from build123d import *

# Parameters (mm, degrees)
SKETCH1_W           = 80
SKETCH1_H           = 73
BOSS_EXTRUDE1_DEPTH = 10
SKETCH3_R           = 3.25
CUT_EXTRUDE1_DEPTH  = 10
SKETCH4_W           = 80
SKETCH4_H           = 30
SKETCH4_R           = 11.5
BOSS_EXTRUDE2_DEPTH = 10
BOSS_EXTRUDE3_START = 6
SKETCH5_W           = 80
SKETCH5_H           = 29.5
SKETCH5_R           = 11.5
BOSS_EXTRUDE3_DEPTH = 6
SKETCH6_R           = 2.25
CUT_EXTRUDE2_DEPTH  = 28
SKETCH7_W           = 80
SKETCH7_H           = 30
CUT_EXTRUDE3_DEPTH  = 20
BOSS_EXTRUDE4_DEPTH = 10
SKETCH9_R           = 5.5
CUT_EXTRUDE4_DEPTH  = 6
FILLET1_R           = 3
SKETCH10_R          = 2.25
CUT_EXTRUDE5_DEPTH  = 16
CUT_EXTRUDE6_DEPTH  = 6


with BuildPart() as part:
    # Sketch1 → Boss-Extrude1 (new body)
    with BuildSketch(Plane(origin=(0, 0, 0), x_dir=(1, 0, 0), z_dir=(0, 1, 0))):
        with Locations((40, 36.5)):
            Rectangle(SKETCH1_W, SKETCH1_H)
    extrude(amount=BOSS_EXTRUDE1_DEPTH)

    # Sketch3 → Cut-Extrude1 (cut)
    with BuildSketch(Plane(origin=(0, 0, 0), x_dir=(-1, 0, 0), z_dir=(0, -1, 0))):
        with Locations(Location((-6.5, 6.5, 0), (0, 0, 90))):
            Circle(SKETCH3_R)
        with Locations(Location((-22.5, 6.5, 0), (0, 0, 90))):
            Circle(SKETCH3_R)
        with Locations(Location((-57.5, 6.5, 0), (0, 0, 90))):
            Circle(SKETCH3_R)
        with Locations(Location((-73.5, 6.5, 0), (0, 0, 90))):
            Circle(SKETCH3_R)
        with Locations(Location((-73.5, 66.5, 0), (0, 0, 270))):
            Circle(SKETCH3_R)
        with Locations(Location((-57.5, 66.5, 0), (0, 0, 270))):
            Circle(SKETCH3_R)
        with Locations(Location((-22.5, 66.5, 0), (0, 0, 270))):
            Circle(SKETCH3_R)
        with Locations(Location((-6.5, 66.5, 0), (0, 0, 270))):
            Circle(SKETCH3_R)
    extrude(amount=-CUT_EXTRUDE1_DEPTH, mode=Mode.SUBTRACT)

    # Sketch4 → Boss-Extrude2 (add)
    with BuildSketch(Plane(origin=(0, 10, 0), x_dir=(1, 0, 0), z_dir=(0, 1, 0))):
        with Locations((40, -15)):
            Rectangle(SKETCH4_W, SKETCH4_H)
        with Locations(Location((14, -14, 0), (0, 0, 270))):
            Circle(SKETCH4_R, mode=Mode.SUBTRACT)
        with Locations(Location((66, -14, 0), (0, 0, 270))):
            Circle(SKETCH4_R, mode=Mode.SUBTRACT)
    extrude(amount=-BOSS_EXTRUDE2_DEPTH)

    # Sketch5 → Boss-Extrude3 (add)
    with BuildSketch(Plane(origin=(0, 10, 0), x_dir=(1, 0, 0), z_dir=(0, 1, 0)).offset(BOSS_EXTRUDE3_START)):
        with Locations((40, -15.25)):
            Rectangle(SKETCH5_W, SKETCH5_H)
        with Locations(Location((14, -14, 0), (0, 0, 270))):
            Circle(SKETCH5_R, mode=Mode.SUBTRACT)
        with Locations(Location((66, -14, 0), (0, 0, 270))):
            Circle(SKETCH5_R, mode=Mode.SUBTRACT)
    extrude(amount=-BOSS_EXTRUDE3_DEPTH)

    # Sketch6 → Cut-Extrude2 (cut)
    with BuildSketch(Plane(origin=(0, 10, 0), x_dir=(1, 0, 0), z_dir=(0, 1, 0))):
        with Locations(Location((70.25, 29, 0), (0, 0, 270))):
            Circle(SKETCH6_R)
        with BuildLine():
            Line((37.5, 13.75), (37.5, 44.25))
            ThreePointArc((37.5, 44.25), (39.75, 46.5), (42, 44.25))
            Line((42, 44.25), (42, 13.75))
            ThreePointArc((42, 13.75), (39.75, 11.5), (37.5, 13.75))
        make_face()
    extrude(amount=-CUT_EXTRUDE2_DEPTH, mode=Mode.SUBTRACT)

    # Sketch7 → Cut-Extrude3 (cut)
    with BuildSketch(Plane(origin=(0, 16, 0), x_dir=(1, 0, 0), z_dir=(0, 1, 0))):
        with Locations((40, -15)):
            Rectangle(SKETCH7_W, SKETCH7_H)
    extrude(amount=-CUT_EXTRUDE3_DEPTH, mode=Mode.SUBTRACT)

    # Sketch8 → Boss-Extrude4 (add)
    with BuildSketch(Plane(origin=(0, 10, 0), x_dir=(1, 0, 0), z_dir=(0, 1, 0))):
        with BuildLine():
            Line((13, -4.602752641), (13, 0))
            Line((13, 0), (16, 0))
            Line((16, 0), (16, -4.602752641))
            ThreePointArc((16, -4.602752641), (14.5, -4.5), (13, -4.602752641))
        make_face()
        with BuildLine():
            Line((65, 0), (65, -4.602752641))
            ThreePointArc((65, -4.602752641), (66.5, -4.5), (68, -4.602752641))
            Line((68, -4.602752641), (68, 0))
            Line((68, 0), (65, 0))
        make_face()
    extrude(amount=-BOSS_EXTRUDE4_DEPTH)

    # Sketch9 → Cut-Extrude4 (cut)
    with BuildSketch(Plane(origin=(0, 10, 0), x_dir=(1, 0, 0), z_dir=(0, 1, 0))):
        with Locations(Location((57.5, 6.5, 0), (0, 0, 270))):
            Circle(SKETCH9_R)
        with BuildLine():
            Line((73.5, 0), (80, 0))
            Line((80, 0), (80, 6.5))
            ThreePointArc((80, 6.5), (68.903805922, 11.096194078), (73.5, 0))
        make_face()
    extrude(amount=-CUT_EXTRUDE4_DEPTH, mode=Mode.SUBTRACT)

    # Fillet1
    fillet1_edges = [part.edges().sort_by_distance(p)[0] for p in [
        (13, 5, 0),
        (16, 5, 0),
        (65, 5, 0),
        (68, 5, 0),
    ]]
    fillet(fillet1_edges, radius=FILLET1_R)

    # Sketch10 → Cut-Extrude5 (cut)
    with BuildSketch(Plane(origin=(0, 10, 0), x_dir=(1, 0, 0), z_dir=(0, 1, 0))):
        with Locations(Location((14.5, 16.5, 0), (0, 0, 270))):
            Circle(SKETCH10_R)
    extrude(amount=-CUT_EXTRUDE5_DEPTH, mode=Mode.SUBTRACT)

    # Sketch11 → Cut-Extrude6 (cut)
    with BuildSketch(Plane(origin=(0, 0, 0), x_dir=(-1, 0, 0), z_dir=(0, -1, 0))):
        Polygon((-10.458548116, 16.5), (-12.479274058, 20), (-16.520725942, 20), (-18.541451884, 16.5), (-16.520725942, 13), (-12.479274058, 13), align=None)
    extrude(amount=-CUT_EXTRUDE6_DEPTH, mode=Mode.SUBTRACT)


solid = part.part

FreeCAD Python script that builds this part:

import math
import FreeCAD as App
import Part
import Sketcher
from FreeCAD import Vector
Q = App.Units.Quantity


def edges_at(feature, points):
    """Names of the edges that pass closest to the given points."""
    edges = feature.Shape.Edges
    near = lambda p: min(range(len(edges)), key=lambda i: edges[i].distToShape(Part.Vertex(*p))[0])
    return sorted({f"Edge{near(p) + 1}" for p in points})

doc = App.newDocument("Part")
body = doc.addObject("PartDesign::Body", "Body")

sketch1 = body.newObject("Sketcher::SketchObject", "Sketch")
sketch1.AttachmentSupport = (doc.getObject("XZ_Plane"), [""])
sketch1.MapMode = "FlatFace"
sketch1.addGeometry([
    Part.LineSegment(Vector(0, -73, 0), Vector(0, 0, 0)),
    Part.LineSegment(Vector(0, 0, 0), Vector(80, 0, 0)),
    Part.LineSegment(Vector(80, 0, 0), Vector(80, -73, 0)),
    Part.LineSegment(Vector(80, -73, 0), Vector(0, -73, 0)),
], False)
sketch1.addConstraint([
    Sketcher.Constraint("Coincident", 0, 2, 1, 1),
    Sketcher.Constraint("Coincident", 1, 2, 2, 1),
    Sketcher.Constraint("Coincident", 2, 2, 3, 1),
    Sketcher.Constraint("Coincident", 3, 2, 0, 1),
    Sketcher.Constraint("Vertical", 0),
    Sketcher.Constraint("Horizontal", 1),
    Sketcher.Constraint("Vertical", 2),
    Sketcher.Constraint("Horizontal", 3),
    Sketcher.Constraint("Coincident", 0, 2, -1, 1),
    Sketcher.Constraint("DistanceX", 1, 1, 1, 2, 80.0),
    Sketcher.Constraint("DistanceY", 0, 1, 0, 2, 73.0),
])
pad1 = body.newObject("PartDesign::Pad", "Pad")
pad1.Profile = sketch1
pad1.Length = 10
pad1.Reversed = True

sketch2 = body.newObject("Sketcher::SketchObject", "Sketch001")
sketch2.AttachmentSupport = (doc.getObject("XZ_Plane"), [""])
sketch2.MapMode = "FlatFace"
sketch2.addGeometry([
    Part.Circle(Vector(6.5, -6.5, 0), Vector(0, 0, 1), 3.2),
    Part.Circle(Vector(22.5, -6.5, 0), Vector(0, 0, 1), 3.2),
    Part.Circle(Vector(57.5, -6.5, 0), Vector(0, 0, 1), 3.2),
    Part.Circle(Vector(73.5, -6.5, 0), Vector(0, 0, 1), 3.2),
    Part.Circle(Vector(73.5, -66.5, 0), Vector(0, 0, 1), 3.2),
    Part.Circle(Vector(57.5, -66.5, 0), Vector(0, 0, 1), 3.2),
    Part.Circle(Vector(22.5, -66.5, 0), Vector(0, 0, 1), 3.2),
    Part.Circle(Vector(6.5, -66.5, 0), Vector(0, 0, 1), 3.2),
], False)
sketch2.addConstraint([
    Sketcher.Constraint("Equal", 0, 1),
    Sketcher.Constraint("Equal", 1, 2),
    Sketcher.Constraint("Equal", 2, 3),
    Sketcher.Constraint("Equal", 3, 4),
    Sketcher.Constraint("Equal", 4, 5),
    Sketcher.Constraint("Equal", 5, 6),
    Sketcher.Constraint("Equal", 6, 7),
    Sketcher.Constraint("Horizontal", 0, 3, 1, 3),
    Sketcher.Constraint("Horizontal", 1, 3, 2, 3),
    Sketcher.Constraint("Horizontal", 2, 3, 3, 3),
    Sketcher.Constraint("Horizontal", 4, 3, 5, 3),
    Sketcher.Constraint("Horizontal", 5, 3, 6, 3),
    Sketcher.Constraint("Horizontal", 6, 3, 7, 3),
    Sketcher.Constraint("Vertical", 3, 3, 4, 3),
    Sketcher.Constraint("Vertical", 2, 3, 5, 3),
    Sketcher.Constraint("Vertical", 1, 3, 6, 3),
    Sketcher.Constraint("Vertical", 0, 3, 7, 3),
    Sketcher.Constraint("Diameter", 0, 6.5),
    Sketcher.Constraint("DistanceX", 0, 3, 1, 3, 16.0),
    Sketcher.Constraint("DistanceX", 1, 3, 2, 3, 35.0),
    Sketcher.Constraint("DistanceX", 2, 3, 3, 3, 16.0),
    Sketcher.Constraint("DistanceY", 4, 3, 3, 3, 60.0),
    Sketcher.Constraint("DistanceX", -1, 1, 0, 3, 6.5),
    Sketcher.Constraint("DistanceY", 0, 3, -1, 1, 6.5),
])
pocket1 = body.newObject("PartDesign::Pocket", "Pocket")
pocket1.Profile = sketch2
pocket1.Length = 10

sketch3 = body.newObject("Sketcher::SketchObject", "Sketch002")
sketch3.AttachmentSupport = (doc.getObject("XZ_Plane"), [""])
sketch3.MapMode = "FlatFace"
sketch3.AttachmentOffset = App.Placement(Vector(0, 0, -10), App.Rotation())
sketch3.addGeometry([
    Part.LineSegment(Vector(0, 0, 0), Vector(0, 30, 0)),
    Part.LineSegment(Vector(0, 30, 0), Vector(80, 30, 0)),
    Part.LineSegment(Vector(80, 30, 0), Vector(80, 0, 0)),
    Part.LineSegment(Vector(80, 0, 0), Vector(0, 0, 0)),
    Part.Circle(Vector(14, 14, 0), Vector(0, 0, 1), 12),
    Part.Circle(Vector(66, 14, 0), Vector(0, 0, 1), 12),
], False)
sketch3.addConstraint([
    Sketcher.Constraint("Coincident", 0, 2, 1, 1),
    Sketcher.Constraint("Coincident", 1, 2, 2, 1),
    Sketcher.Constraint("Coincident", 2, 2, 3, 1),
    Sketcher.Constraint("Coincident", 3, 2, 0, 1),
    Sketcher.Constraint("Vertical", 0),
    Sketcher.Constraint("Horizontal", 1),
    Sketcher.Constraint("Vertical", 2),
    Sketcher.Constraint("Horizontal", 3),
    Sketcher.Constraint("Coincident", 3, 2, -1, 1),
    Sketcher.Constraint("Equal", 4, 5),
    Sketcher.Constraint("Horizontal", 4, 3, 5, 3),
    Sketcher.Constraint("Diameter", 4, 23.0),
    Sketcher.Constraint("DistanceX", 1, 1, 1, 2, 80.0),
    Sketcher.Constraint("DistanceY", 0, 1, 0, 2, 30.0),
    Sketcher.Constraint("DistanceX", -1, 1, 4, 3, 14.0),
    Sketcher.Constraint("DistanceY", -1, 1, 4, 3, 14.0),
    Sketcher.Constraint("DistanceX", -1, 1, 5, 3, 66.0),
])
pad2 = body.newObject("PartDesign::Pad", "Pad001")
pad2.Profile = sketch3
pad2.Length = 10

sketch4 = body.newObject("Sketcher::SketchObject", "Sketch003")
sketch4.AttachmentSupport = (doc.getObject("XZ_Plane"), [""])
sketch4.MapMode = "FlatFace"
sketch4.AttachmentOffset = App.Placement(Vector(0, 0, -16), App.Rotation())
sketch4.addGeometry([
    Part.LineSegment(Vector(0, 0, 0), Vector(0, 30, 0)),
    Part.LineSegment(Vector(0, 30, 0), Vector(80, 30, 0)),
    Part.LineSegment(Vector(80, 30, 0), Vector(80, 0, 0)),
    Part.LineSegment(Vector(80, 0, 0), Vector(0, 0, 0)),
    Part.Circle(Vector(14, 14, 0), Vector(0, 0, 1), 12),
    Part.Circle(Vector(66, 14, 0), Vector(0, 0, 1), 12),
], False)
sketch4.addConstraint([
    Sketcher.Constraint("Coincident", 0, 2, 1, 1),
    Sketcher.Constraint("Coincident", 1, 2, 2, 1),
    Sketcher.Constraint("Coincident", 2, 2, 3, 1),
    Sketcher.Constraint("Coincident", 3, 2, 0, 1),
    Sketcher.Constraint("Vertical", 0),
    Sketcher.Constraint("Horizontal", 1),
    Sketcher.Constraint("Vertical", 2),
    Sketcher.Constraint("Horizontal", 3),
    Sketcher.Constraint("Equal", 4, 5),
    Sketcher.Constraint("PointOnObject", 0, 2, -2),
    Sketcher.Constraint("Horizontal", 4, 3, 5, 3),
    Sketcher.Constraint("Diameter", 4, 23.0),
    Sketcher.Constraint("DistanceX", 1, 1, 1, 2, 80.0),
    Sketcher.Constraint("DistanceY", 0, 1, 0, 2, 29.5),
    Sketcher.Constraint("DistanceX", -1, 1, 4, 3, 14.0),
    Sketcher.Constraint("DistanceY", -1, 1, 4, 3, 14.0),
    Sketcher.Constraint("DistanceX", -1, 1, 5, 3, 66.0),
    Sketcher.Constraint("DistanceY", -1, 1, 0, 2, 30.0),
])
pad3 = body.newObject("PartDesign::Pad", "Pad002")
pad3.Profile = sketch4
pad3.Length = 6

sketch5 = body.newObject("Sketcher::SketchObject", "Sketch004")
sketch5.AttachmentSupport = (doc.getObject("XZ_Plane"), [""])
sketch5.MapMode = "FlatFace"
sketch5.AttachmentOffset = App.Placement(Vector(0, 0, -10), App.Rotation())
sketch5.addGeometry([
    Part.Circle(Vector(70.2, -29, 0), Vector(0, 0, 1), 2.2),
    Part.LineSegment(Vector(37.5, -44.2, 0), Vector(37.5, -13.8, 0)),
    Part.ArcOfCircle(Part.Circle(Vector(39.8, -13.8, 0), Vector(0, 0, 1), 2.2), math.radians(0), math.radians(180)),
    Part.LineSegment(Vector(42, -13.8, 0), Vector(42, -44.2, 0)),
    Part.ArcOfCircle(Part.Circle(Vector(39.8, -44.2, 0), Vector(0, 0, 1), 2.2), math.radians(180), math.radians(360)),
], False)
sketch5.addConstraint([
    Sketcher.Constraint("Tangent", 1, 2, 2, 2),
    Sketcher.Constraint("Tangent", 2, 1, 3, 1),
    Sketcher.Constraint("Tangent", 3, 2, 4, 2),
    Sketcher.Constraint("Tangent", 4, 1, 1, 1),
    Sketcher.Constraint("Vertical", 1),
    Sketcher.Constraint("Vertical", 3),
    Sketcher.Constraint("Equal", 0, 2),
    Sketcher.Constraint("Diameter", 0, 4.5),
    Sketcher.Constraint("DistanceY", 1, 1, 1, 2, 30.5),
    Sketcher.Constraint("DistanceY", 0, 3, -1, 1, 29.0),
    Sketcher.Constraint("DistanceX", -1, 1, 2, 1, 42.0),
    Sketcher.Constraint("DistanceX", 2, 3, 0, 3, 30.5),
    Sketcher.Constraint("DistanceY", 2, 3, -1, 1, 13.75),
])
pocket2 = body.newObject("PartDesign::Pocket", "Pocket001")
pocket2.Profile = sketch5
pocket2.Length = 28
pocket2.Reversed = True

sketch6 = body.newObject("Sketcher::SketchObject", "Sketch005")
sketch6.AttachmentSupport = (doc.getObject("XZ_Plane"), [""])
sketch6.MapMode = "FlatFace"
sketch6.AttachmentOffset = App.Placement(Vector(0, 0, -16), App.Rotation())
sketch6.addGeometry([
    Part.LineSegment(Vector(0, 0, 0), Vector(0, 30, 0)),
    Part.LineSegment(Vector(0, 30, 0), Vector(80, 30, 0)),
    Part.LineSegment(Vector(80, 30, 0), Vector(80, 0, 0)),
    Part.LineSegment(Vector(80, 0, 0), Vector(0, 0, 0)),
], False)
sketch6.addConstraint([
    Sketcher.Constraint("Coincident", 0, 2, 1, 1),
    Sketcher.Constraint("Coincident", 1, 2, 2, 1),
    Sketcher.Constraint("Coincident", 2, 2, 3, 1),
    Sketcher.Constraint("Coincident", 3, 2, 0, 1),
    Sketcher.Constraint("Vertical", 0),
    Sketcher.Constraint("Horizontal", 1),
    Sketcher.Constraint("Vertical", 2),
    Sketcher.Constraint("Horizontal", 3),
    Sketcher.Constraint("Coincident", 3, 2, -1, 1),
    Sketcher.Constraint("DistanceX", 1, 1, 1, 2, 80.0),
    Sketcher.Constraint("DistanceY", 0, 1, 0, 2, 30.0),
])
pocket3 = body.newObject("PartDesign::Pocket", "Pocket002")
pocket3.Profile = sketch6
pocket3.Length = 20
pocket3.Reversed = True

sketch7 = body.newObject("Sketcher::SketchObject", "Sketch006")
sketch7.AttachmentSupport = (doc.getObject("XZ_Plane"), [""])
sketch7.MapMode = "FlatFace"
sketch7.AttachmentOffset = App.Placement(Vector(0, 0, -10), App.Rotation())
sketch7.addGeometry([
    Part.LineSegment(Vector(13, 0, 0), Vector(13, 4.6, 0)),
    Part.ArcOfCircle(Part.Circle(Vector(14.5, 15.5, 0), Vector(0, 0, 1), 11), math.radians(-97.84), math.radians(-82.16)),
    Part.LineSegment(Vector(16, 4.6, 0), Vector(16, 0, 0)),
    Part.LineSegment(Vector(16, 0, 0), Vector(13, 0, 0)),
    Part.LineSegment(Vector(65, 0, 0), Vector(65, 4.6, 0)),
    Part.ArcOfCircle(Part.Circle(Vector(66.5, 15.5, 0), Vector(0, 0, 1), 11), math.radians(-97.84), math.radians(-82.16)),
    Part.LineSegment(Vector(68, 4.6, 0), Vector(68, 0, 0)),
    Part.LineSegment(Vector(68, 0, 0), Vector(65, 0, 0)),
], False)
sketch7.addConstraint([
    Sketcher.Constraint("Coincident", 0, 2, 1, 1),
    Sketcher.Constraint("Coincident", 1, 2, 2, 1),
    Sketcher.Constraint("Coincident", 2, 2, 3, 1),
    Sketcher.Constraint("Coincident", 3, 2, 0, 1),
    Sketcher.Constraint("Coincident", 4, 2, 5, 1),
    Sketcher.Constraint("Coincident", 5, 2, 6, 1),
    Sketcher.Constraint("Coincident", 6, 2, 7, 1),
    Sketcher.Constraint("Coincident", 7, 2, 4, 1),
    Sketcher.Constraint("Vertical", 0),
    Sketcher.Constraint("Vertical", 2),
    Sketcher.Constraint("Horizontal", 3),
    Sketcher.Constraint("Vertical", 4),
    Sketcher.Constraint("Vertical", 6),
    Sketcher.Constraint("Horizontal", 7),
    Sketcher.Constraint("Equal", 1, 5),
    Sketcher.Constraint("PointOnObject", 2, 2, -1),
    Sketcher.Constraint("PointOnObject", 6, 2, -1),
    Sketcher.Constraint("Horizontal", 1, 3, 5, 3),
    Sketcher.Constraint("Horizontal", 0, 2, 1, 2),
    Sketcher.Constraint("Horizontal", 1, 2, 4, 2),
    Sketcher.Constraint("Horizontal", 4, 2, 5, 2),
    Sketcher.Constraint("Radius", 1, 11.0),
    Sketcher.Constraint("DistanceX", 3, 2, 3, 1, 3.0),
    Sketcher.Constraint("DistanceX", -1, 1, 0, 2, 13.0),
    Sketcher.Constraint("DistanceX", -1, 1, 4, 2, 65.0),
    Sketcher.Constraint("DistanceY", -1, 1, 1, 3, 15.5),
])
pad4 = body.newObject("PartDesign::Pad", "Pad003")
pad4.Profile = sketch7
pad4.Length = 10

sketch8 = body.newObject("Sketcher::SketchObject", "Sketch007")
sketch8.AttachmentSupport = (doc.getObject("XZ_Plane"), [""])
sketch8.MapMode = "FlatFace"
sketch8.AttachmentOffset = App.Placement(Vector(0, 0, -10), App.Rotation())
sketch8.addGeometry([
    Part.Circle(Vector(58, -6, 0), Vector(0, 0, 1), 6),
    Part.LineSegment(Vector(74, 0, 0), Vector(80, 0, 0)),
    Part.LineSegment(Vector(80, 0, 0), Vector(80, -6, 0)),
    Part.ArcOfCircle(Part.Circle(Vector(74, -6, 0), Vector(0, 0, 1), 6), math.radians(90), math.radians(360)),
], False)
sketch8.addConstraint([
    Sketcher.Constraint("Coincident", 1, 2, 2, 1),
    Sketcher.Constraint("Tangent", 2, 2, 3, 2),
    Sketcher.Constraint("Tangent", 3, 1, 1, 1),
    Sketcher.Constraint("Horizontal", 1),
    Sketcher.Constraint("Vertical", 2),
    Sketcher.Constraint("PointOnObject", 1, 2, -1),
    Sketcher.Constraint("Horizontal", 0, 3, 3, 3),
    Sketcher.Constraint("Diameter", 0, 11.0),
    Sketcher.Constraint("Radius", 3, 6.5),
    Sketcher.Constraint("DistanceX", -1, 1, 1, 2, 80.0),
    Sketcher.Constraint("DistanceX", 0, 3, 3, 3, 16.0),
])
pocket4 = body.newObject("PartDesign::Pocket", "Pocket003")
pocket4.Profile = sketch8
pocket4.Length = 6
pocket4.Reversed = True
doc.recompute()

fillet = body.newObject("PartDesign::Fillet", "Fillet")
fillet.Base = (pocket4, edges_at(pocket4, [
    (13, 5, 0),
    (16, 5, 0),
    (65, 5, 0),
    (68, 5, 0),
]))
fillet.Radius = 3

sketch9 = body.newObject("Sketcher::SketchObject", "Sketch008")
sketch9.AttachmentSupport = (doc.getObject("XZ_Plane"), [""])
sketch9.MapMode = "FlatFace"
sketch9.AttachmentOffset = App.Placement(Vector(0, 0, -10), App.Rotation())
sketch9.addGeometry(Part.Circle(Vector(14.5, -16.5, 0), Vector(0, 0, 1), 2.2), False)
sketch9.addConstraint([
    Sketcher.Constraint("Diameter", 0, 4.5),
    Sketcher.Constraint("DistanceX", -1, 1, 0, 3, 14.5),
    Sketcher.Constraint("DistanceY", 0, 3, -1, 1, 16.5),
])
pocket5 = body.newObject("PartDesign::Pocket", "Pocket004")
pocket5.Profile = sketch9
pocket5.Length = 16
pocket5.Reversed = True

sketch10 = body.newObject("Sketcher::SketchObject", "Sketch009")
sketch10.AttachmentSupport = (doc.getObject("XZ_Plane"), [""])
sketch10.MapMode = "FlatFace"
sketch10.addGeometry([
    Part.LineSegment(Vector(10.5, -16.5, 0), Vector(12.5, -20, 0)),
    Part.LineSegment(Vector(12.5, -20, 0), Vector(16.5, -20, 0)),
    Part.LineSegment(Vector(16.5, -20, 0), Vector(18.5, -16.5, 0)),
    Part.LineSegment(Vector(18.5, -16.5, 0), Vector(16.5, -13, 0)),
    Part.LineSegment(Vector(16.5, -13, 0), Vector(12.5, -13, 0)),
    Part.LineSegment(Vector(12.5, -13, 0), Vector(10.5, -16.5, 0)),
], False)
sketch10.addConstraint([
    Sketcher.Constraint("Coincident", 0, 2, 1, 1),
    Sketcher.Constraint("Coincident", 1, 2, 2, 1),
    Sketcher.Constraint("Coincident", 2, 2, 3, 1),
    Sketcher.Constraint("Coincident", 3, 2, 4, 1),
    Sketcher.Constraint("Coincident", 4, 2, 5, 1),
    Sketcher.Constraint("Coincident", 5, 2, 0, 1),
    Sketcher.Constraint("Horizontal", 1),
    Sketcher.Constraint("Horizontal", 4),
    Sketcher.Constraint("Parallel", 0, 3),
    Sketcher.Constraint("Parallel", 2, 5),
    Sketcher.Constraint("Horizontal", 2, 2, 5, 2),
    Sketcher.Constraint("Vertical", 1, 2, 3, 2),
    Sketcher.Constraint("Vertical", 0, 2, 4, 2),
    Sketcher.Constraint("Angle", 0, Q("-60 deg")),
    Sketcher.Constraint("DistanceY", 0, 2, -1, 1, 20.0),
    Sketcher.Constraint("DistanceY", 3, 2, -1, 1, 13.0),
    Sketcher.Constraint("DistanceX", 1, 1, 1, 2, 4.041452),
    Sketcher.Constraint("DistanceX", -1, 1, 2, 2, 18.541452),
])
pocket6 = body.newObject("PartDesign::Pocket", "Pocket005")
pocket6.Profile = sketch10
pocket6.Length = 6

doc.recompute()
